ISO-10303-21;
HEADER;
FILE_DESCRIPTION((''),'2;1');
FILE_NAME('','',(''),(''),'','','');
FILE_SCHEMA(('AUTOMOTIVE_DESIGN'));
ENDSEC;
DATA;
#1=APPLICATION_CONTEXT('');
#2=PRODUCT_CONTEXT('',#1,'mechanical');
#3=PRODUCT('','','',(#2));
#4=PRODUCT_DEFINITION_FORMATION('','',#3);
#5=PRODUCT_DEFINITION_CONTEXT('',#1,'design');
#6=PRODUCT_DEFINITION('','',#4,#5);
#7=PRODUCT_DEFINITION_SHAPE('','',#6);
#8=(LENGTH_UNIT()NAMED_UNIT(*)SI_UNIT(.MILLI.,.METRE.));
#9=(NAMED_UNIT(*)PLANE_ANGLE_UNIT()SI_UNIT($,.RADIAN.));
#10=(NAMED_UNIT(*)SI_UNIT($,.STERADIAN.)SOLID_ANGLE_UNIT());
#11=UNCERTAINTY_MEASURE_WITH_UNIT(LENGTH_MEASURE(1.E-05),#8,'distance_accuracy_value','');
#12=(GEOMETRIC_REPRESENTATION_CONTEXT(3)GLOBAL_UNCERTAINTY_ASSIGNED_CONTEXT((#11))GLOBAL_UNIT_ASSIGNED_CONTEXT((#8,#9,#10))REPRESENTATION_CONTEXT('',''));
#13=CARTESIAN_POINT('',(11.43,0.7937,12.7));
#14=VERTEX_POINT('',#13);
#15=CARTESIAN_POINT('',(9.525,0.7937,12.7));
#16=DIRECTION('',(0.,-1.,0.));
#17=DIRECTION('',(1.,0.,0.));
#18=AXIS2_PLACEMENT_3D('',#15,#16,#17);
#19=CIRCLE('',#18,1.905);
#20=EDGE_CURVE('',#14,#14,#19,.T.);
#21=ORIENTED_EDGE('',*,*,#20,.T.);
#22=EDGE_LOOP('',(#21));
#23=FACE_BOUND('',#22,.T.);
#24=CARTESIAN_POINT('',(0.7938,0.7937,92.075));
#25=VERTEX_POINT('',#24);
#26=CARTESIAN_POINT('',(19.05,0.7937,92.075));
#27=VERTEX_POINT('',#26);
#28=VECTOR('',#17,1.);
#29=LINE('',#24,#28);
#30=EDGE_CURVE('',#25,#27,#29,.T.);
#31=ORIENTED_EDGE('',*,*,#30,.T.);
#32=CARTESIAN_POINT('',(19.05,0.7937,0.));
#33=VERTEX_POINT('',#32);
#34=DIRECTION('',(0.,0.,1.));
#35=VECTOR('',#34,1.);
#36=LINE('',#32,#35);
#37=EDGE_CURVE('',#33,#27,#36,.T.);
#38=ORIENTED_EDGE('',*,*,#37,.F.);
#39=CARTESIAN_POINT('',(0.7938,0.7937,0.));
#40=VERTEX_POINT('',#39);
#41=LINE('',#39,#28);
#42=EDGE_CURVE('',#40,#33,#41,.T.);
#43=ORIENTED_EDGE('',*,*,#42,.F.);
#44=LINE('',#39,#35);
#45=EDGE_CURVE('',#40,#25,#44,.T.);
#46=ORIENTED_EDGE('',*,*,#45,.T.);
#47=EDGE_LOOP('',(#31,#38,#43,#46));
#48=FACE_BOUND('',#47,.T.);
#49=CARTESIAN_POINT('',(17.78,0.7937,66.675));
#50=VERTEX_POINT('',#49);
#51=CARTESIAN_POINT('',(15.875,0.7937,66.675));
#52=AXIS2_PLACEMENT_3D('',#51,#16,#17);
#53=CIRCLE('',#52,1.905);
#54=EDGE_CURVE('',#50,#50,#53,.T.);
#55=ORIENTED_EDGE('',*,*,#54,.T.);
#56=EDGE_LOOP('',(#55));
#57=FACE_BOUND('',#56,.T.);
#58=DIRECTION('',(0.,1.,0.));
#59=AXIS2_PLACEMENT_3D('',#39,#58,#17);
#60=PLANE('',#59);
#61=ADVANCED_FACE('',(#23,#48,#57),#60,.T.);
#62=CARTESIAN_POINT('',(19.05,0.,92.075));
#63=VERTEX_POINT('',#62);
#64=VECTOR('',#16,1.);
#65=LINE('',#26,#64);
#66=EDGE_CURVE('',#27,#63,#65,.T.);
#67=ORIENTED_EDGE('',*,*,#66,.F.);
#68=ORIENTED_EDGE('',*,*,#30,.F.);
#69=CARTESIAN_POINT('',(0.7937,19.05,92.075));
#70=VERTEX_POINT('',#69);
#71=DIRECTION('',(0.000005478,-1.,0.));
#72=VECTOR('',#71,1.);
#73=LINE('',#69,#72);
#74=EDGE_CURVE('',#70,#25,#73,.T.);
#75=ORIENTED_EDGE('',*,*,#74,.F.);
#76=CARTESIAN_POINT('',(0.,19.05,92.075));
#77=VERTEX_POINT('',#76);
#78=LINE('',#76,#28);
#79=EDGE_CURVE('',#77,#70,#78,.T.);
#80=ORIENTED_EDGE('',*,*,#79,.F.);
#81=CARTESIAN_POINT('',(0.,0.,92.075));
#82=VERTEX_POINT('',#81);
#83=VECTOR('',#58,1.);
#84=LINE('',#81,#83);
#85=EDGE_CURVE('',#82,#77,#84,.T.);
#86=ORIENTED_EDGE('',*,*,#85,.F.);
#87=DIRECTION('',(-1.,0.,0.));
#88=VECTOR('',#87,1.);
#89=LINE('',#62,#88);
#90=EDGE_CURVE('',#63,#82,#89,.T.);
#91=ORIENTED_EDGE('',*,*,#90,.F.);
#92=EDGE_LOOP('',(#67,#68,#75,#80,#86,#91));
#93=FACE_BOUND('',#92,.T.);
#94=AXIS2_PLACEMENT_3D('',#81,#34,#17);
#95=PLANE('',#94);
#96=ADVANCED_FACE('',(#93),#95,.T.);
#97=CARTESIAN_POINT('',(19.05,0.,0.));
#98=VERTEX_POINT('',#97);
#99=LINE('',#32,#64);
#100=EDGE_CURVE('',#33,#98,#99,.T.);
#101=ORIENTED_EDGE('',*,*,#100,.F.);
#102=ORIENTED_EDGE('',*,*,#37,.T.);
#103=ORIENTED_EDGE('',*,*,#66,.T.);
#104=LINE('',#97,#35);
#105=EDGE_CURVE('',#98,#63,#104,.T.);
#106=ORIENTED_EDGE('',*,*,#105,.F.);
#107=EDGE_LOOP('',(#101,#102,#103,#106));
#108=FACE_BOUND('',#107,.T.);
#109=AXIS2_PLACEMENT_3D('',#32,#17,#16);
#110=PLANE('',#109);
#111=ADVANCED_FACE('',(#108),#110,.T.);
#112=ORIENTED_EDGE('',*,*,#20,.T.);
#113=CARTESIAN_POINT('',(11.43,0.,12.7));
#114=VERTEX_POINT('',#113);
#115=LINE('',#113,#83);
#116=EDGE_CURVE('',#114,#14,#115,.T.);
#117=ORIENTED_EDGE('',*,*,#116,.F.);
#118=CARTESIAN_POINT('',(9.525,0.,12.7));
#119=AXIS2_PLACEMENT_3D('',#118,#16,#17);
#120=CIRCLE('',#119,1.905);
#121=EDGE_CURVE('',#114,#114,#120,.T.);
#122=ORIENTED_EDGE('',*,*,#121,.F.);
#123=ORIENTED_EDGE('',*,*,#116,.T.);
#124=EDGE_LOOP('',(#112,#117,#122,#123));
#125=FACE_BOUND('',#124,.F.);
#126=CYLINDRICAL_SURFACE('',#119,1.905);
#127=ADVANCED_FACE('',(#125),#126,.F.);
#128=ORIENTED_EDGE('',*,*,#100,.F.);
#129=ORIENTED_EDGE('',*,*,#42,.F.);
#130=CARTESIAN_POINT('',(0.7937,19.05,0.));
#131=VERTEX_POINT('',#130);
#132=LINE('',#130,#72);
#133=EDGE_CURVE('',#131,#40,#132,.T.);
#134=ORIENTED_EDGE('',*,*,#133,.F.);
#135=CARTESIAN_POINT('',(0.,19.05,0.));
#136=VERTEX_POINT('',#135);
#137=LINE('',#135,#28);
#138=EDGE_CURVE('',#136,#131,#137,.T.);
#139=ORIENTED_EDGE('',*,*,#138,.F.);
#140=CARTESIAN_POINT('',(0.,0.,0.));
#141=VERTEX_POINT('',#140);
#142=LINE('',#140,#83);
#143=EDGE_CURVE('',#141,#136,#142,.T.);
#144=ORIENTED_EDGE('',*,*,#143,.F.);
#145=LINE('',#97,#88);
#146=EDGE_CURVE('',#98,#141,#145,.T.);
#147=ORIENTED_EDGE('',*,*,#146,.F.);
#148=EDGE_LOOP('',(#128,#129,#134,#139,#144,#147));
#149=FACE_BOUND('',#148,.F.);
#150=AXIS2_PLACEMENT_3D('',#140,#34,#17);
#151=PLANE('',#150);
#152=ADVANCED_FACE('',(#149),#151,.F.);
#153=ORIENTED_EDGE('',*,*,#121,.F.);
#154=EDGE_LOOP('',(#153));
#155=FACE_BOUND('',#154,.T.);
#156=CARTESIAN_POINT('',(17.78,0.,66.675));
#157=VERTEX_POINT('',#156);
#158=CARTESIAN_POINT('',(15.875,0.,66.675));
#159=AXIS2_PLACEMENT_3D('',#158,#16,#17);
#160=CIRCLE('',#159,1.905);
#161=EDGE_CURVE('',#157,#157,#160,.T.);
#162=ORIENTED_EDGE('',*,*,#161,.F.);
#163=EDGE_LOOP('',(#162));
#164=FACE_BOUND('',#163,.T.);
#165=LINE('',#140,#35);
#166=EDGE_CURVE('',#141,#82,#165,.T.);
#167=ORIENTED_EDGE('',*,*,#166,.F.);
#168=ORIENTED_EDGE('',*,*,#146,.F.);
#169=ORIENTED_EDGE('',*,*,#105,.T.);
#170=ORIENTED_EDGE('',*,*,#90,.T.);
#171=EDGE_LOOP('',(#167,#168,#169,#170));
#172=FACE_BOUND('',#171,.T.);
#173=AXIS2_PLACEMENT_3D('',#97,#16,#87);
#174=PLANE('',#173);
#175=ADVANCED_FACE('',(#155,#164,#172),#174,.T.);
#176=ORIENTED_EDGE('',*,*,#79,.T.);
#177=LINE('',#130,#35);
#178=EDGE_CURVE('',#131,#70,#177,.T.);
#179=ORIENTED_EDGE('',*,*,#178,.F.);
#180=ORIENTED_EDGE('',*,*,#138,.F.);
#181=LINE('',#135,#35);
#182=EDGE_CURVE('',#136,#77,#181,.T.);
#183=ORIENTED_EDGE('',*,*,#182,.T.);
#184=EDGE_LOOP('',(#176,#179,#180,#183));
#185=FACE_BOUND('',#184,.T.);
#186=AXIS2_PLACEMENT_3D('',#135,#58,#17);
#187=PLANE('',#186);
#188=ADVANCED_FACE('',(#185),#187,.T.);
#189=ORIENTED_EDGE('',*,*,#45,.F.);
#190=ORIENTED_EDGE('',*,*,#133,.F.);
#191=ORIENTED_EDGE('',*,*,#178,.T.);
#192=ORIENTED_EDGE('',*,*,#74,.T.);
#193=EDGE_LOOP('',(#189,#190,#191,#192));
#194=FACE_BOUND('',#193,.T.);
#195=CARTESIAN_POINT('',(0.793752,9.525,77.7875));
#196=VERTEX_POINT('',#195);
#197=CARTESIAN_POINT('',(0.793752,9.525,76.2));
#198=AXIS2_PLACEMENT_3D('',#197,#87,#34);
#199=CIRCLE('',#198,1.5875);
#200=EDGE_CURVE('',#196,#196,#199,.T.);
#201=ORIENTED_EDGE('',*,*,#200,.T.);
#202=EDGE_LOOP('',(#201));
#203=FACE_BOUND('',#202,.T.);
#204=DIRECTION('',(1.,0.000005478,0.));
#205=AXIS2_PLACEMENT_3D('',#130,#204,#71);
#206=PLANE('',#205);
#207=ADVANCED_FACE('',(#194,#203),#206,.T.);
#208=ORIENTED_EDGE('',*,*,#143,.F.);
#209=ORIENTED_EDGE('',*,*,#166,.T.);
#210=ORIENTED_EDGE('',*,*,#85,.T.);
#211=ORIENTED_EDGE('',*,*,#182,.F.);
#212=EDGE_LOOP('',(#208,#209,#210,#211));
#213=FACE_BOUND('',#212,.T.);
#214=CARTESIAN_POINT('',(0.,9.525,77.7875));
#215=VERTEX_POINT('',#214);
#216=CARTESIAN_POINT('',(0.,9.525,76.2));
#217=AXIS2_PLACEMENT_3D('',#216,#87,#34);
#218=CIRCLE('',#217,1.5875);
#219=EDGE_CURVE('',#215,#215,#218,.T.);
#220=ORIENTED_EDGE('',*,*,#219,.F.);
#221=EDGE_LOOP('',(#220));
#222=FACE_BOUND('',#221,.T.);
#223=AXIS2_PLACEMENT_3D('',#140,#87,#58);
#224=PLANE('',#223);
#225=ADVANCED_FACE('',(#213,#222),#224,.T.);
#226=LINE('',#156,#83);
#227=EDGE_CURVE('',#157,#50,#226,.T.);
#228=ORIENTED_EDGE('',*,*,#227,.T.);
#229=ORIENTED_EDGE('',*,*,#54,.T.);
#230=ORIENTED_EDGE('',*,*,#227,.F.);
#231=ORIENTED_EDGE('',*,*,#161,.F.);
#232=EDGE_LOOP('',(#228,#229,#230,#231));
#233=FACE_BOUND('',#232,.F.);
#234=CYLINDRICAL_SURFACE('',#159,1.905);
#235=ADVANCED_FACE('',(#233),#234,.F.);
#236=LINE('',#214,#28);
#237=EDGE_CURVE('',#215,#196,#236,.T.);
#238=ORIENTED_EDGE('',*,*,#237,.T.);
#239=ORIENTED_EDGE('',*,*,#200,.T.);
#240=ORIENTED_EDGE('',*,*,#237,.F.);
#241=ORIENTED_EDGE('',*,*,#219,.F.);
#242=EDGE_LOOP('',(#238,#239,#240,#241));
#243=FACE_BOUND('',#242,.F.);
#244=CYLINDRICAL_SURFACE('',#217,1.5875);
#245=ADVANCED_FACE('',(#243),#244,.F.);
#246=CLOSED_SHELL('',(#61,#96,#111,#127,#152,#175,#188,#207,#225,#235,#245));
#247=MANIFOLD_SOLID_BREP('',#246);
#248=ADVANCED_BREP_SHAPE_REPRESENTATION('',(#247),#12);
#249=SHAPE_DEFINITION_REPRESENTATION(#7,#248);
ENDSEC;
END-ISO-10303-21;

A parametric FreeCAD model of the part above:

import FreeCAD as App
import Part
import Sketcher
from FreeCAD import Vector
Q = App.Units.Quantity


def add_polygon(sketch, points):
    """Adds a closed chain of lines whose ends are joined by coincident constraints."""
    first, n = sketch.GeometryCount, len(points)
    for a, b in zip(points, points[1:] + points[:1]):
        sketch.addGeometry(Part.LineSegment(App.Vector(*a, 0), App.Vector(*b, 0)), False)
    for i in range(n):
        sketch.addConstraint(Sketcher.Constraint("Coincident", first + i, 2, first + (i + 1) % n, 1))

doc = App.newDocument("Part")
body = doc.addObject("PartDesign::Body", "Body")

# Sketch on XY plane
sketch1 = doc.addObject("Sketcher::SketchObject", "Sketch")
body.addObject(sketch1)
sketch1.AttachmentSupport = (doc.XY_Plane, [""])
sketch1.MapMode = "FlatFace"
add_polygon(sketch1, [(0, 19.05), (0, 0), (19.05, 0), (19.05, 0.7937), (0.7938, 0.7937), (0.7937, 19.05)])  # lines 0-5
sketch1.addConstraint([
    Sketcher.Constraint("Vertical", 0),
    Sketcher.Constraint("Horizontal", 1),
    Sketcher.Constraint("Vertical", 2),
    Sketcher.Constraint("Horizontal", 3),
    Sketcher.Constraint("Vertical", 4),
    Sketcher.Constraint("Horizontal", 5),
    Sketcher.Constraint("Coincident", 0, 2, -1, 1),
    Sketcher.Constraint("Equal", 1, 0),
    Sketcher.Constraint("Equal", 5, 2),
    Sketcher.Constraint("DistanceX", 1, 1, 1, 2, Q("0.75 in")),
    Sketcher.Constraint("DistanceX", 5, 2, 5, 1, Q("0.031248 in")),
])
pad1 = doc.addObject("PartDesign::Pad", "Pad")
body.addObject(pad1)
pad1.Profile = sketch1
pad1.Length = Q("3.625 in")

# Sketch on XZ plane
sketch2 = doc.addObject("Sketcher::SketchObject", "Sketch001")
body.addObject(sketch2)
sketch2.AttachmentSupport = (doc.XZ_Plane, [""])
sketch2.MapMode = "FlatFace"
sketch2.addGeometry([
    Part.Circle(Vector(15.875, 66.675, 0), Vector(0, 0, 1), 1.905),
    Part.Circle(Vector(9.525, 12.7, 0), Vector(0, 0, 1), 1.905),
], False)
sketch2.addConstraint([
    Sketcher.Constraint("Equal", 0, 1),
    Sketcher.Constraint("Diameter", 0, Q("0.15 in")),
    Sketcher.Constraint("DistanceY", -1, 1, 1, 3, Q("0.5 in")),
    Sketcher.Constraint("DistanceX", 1, 3, 0, 3, Q("0.25 in")),
    Sketcher.Constraint("DistanceX", -1, 1, 0, 3, Q("0.625 in")),
    Sketcher.Constraint("DistanceY", -1, 1, 0, 3, Q("2.625 in")),
])
pocket1 = doc.addObject("PartDesign::Pocket", "Pocket")
body.addObject(pocket1)
pocket1.Profile = sketch2
pocket1.Type = "ThroughAll"

# Sketch on YZ plane
sketch3 = doc.addObject("Sketcher::SketchObject", "Sketch002")
body.addObject(sketch3)
sketch3.AttachmentSupport = (doc.YZ_Plane, [""])
sketch3.MapMode = "FlatFace"
sketch3.addGeometry(Part.Circle(Vector(9.525, 76.2, 0), Vector(0, 0, 1), 1.5875), False)
sketch3.addConstraint([
    Sketcher.Constraint("Diameter", 0, Q("0.125 in")),
    Sketcher.Constraint("DistanceY", -1, 1, 0, 3, Q("3 in")),
    Sketcher.Constraint("DistanceX", -1, 1, 0, 3, Q("0.375 in")),
])
pocket2 = doc.addObject("PartDesign::Pocket", "Pocket001")
body.addObject(pocket2)
pocket2.Profile = sketch3
pocket2.Type = "ThroughAll"
pocket2.Reversed = True

doc.recompute()
